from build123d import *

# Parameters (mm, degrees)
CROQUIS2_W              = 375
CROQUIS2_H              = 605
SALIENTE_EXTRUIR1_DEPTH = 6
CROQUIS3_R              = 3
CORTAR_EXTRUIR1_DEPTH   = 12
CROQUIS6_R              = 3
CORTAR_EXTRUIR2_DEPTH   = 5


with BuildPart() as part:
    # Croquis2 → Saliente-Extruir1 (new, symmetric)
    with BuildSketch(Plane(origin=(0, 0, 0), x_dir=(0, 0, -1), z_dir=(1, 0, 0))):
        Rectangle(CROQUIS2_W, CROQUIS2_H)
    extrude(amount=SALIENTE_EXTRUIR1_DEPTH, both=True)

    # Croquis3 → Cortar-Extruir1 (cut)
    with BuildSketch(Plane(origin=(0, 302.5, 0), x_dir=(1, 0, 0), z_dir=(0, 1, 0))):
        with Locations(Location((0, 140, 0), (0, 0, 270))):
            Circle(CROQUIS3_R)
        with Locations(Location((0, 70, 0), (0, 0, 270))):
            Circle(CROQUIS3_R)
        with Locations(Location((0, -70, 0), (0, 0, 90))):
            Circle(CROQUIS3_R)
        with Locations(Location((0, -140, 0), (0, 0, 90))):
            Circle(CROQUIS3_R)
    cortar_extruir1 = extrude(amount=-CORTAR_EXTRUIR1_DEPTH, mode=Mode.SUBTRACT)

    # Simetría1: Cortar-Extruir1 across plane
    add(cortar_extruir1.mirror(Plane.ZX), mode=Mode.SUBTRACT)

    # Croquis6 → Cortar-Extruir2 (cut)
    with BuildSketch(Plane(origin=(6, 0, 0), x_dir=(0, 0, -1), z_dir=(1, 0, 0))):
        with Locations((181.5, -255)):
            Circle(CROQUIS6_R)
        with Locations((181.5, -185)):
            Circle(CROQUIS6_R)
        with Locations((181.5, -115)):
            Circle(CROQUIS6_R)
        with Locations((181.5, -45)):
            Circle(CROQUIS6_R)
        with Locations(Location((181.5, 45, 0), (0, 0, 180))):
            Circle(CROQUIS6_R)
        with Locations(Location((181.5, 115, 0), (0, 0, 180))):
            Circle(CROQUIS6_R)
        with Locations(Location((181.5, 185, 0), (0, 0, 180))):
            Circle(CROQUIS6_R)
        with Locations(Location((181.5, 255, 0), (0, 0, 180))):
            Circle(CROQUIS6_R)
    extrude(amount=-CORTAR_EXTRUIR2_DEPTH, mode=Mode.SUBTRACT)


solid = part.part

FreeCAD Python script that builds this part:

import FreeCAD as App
import Part
import Sketcher
Q = App.Units.Quantity


def add_polygon(sketch, points):
    """Adds a closed chain of lines whose ends are joined by coincident constraints."""
    first, n = sketch.GeometryCount, len(points)
    for a, b in zip(points, points[1:] + points[:1]):
        sketch.addGeometry(Part.LineSegment(App.Vector(*a, 0), App.Vector(*b, 0)), False)
    for i in range(n):
        sketch.addConstraint(Sketcher.Constraint("Coincident", first + i, 2, first + (i + 1) % n, 1))

doc = App.newDocument("Part")
body = doc.addObject("PartDesign::Body", "Body")

# Sketch on YZ plane
sketch1 = body.newObject("Sketcher::SketchObject", "Sketch")
sketch1.AttachmentSupport = (doc.getObject("YZ_Plane"), [""])
sketch1.MapMode = "FlatFace"
add_polygon(sketch1, [(302, 188), (-302, 188), (-302, -188), (302, -188)])  # lines 0-3
sketch1.addConstraint([
    Sketcher.Constraint("Horizontal", 0),
    Sketcher.Constraint("Vertical", 1),
    Sketcher.Constraint("Horizontal", 2),
    Sketcher.Constraint("Vertical", 3),
    Sketcher.Constraint("Symmetric", 0, 2, 2, 2, -1, 1),
    Sketcher.Constraint("DistanceX", 0, 2, 0, 1, Q("605 mm")),
    Sketcher.Constraint("DistanceY", 1, 2, 1, 1, Q("375 mm")),
])
pad1 = body.newObject("PartDesign::Pad", "Pad")
pad1.Profile = sketch1
pad1.Length = 12
pad1.Midplane = True

# Sketch on XZ plane
sketch2 = body.newObject("Sketcher::SketchObject", "Sketch001")
sketch2.AttachmentSupport = (doc.getObject("XZ_Plane"), [""])
sketch2.MapMode = "FlatFace"
sketch2.AttachmentOffset = App.Placement(App.Vector(0, 0, -302.5), App.Rotation())
sketch2.addGeometry([
    Part.Circle(App.Vector(0, -140, 0), App.Vector(0, 0, 1), 3),
    Part.Circle(App.Vector(0, -70, 0), App.Vector(0, 0, 1), 3),
    Part.Circle(App.Vector(0, 70, 0), App.Vector(0, 0, 1), 3),
    Part.Circle(App.Vector(0, 140, 0), App.Vector(0, 0, 1), 3),
], False)
sketch2.addConstraint([
    Sketcher.Constraint("Equal", 0, 1),
    Sketcher.Constraint("Equal", 1, 2),
    Sketcher.Constraint("Equal", 2, 3),
    Sketcher.Constraint("Symmetric", 1, 3, 2, 3, -1, 1),
    Sketcher.Constraint("Symmetric", 0, 3, 3, 3, -1, 1),
    Sketcher.Constraint("PointOnObject", 0, 3, -2),
    Sketcher.Constraint("PointOnObject", 1, 3, -2),
    Sketcher.Constraint("Diameter", 0, Q("6 mm")),
    Sketcher.Constraint("DistanceY", 0, 3, -1, 1, Q("140 mm")),
    Sketcher.Constraint("DistanceY", 1, 3, -1, 1, Q("70 mm")),
])
pocket1 = body.newObject("PartDesign::Pocket", "Pocket")
pocket1.Profile = sketch2
pocket1.Length = 12
pocket1.Reversed = True
doc.recompute()

mirrored = body.newObject("PartDesign::Mirrored", "Mirrored")
mirrored.Originals = [pocket1]
mirrored.MirrorPlane = (doc.getObject("XZ_Plane"), [""])
body.Tip = mirrored

# Sketch on YZ plane
sketch3 = body.newObject("Sketcher::SketchObject", "Sketch002")
sketch3.AttachmentSupport = (doc.getObject("YZ_Plane"), [""])
sketch3.MapMode = "FlatFace"
sketch3.AttachmentOffset = App.Placement(App.Vector(0, 0, 6), App.Rotation())
sketch3.addGeometry([
    Part.Circle(App.Vector(-255, -181.5, 0), App.Vector(0, 0, 1), 3),  # 0
    Part.Circle(App.Vector(-185, -181.5, 0), App.Vector(0, 0, 1), 3),  # 1
    Part.Circle(App.Vector(-115, -181.5, 0), App.Vector(0, 0, 1), 3),  # 2
    Part.Circle(App.Vector(-45, -181.5, 0), App.Vector(0, 0, 1), 3),  # 3
    Part.Circle(App.Vector(45, -181.5, 0), App.Vector(0, 0, 1), 3),  # 4
    Part.Circle(App.Vector(115, -181.5, 0), App.Vector(0, 0, 1), 3),  # 5
    Part.Circle(App.Vector(185, -181.5, 0), App.Vector(0, 0, 1), 3),  # 6
    Part.Circle(App.Vector(255, -181.5, 0), App.Vector(0, 0, 1), 3),  # 7
], False)
sketch3.addConstraint([
    Sketcher.Constraint("Equal", 0, 1),
    Sketcher.Constraint("Equal", 1, 2),
    Sketcher.Constraint("Equal", 2, 3),
    Sketcher.Constraint("Equal", 3, 4),
    Sketcher.Constraint("Equal", 4, 5),
    Sketcher.Constraint("Equal", 5, 6),
    Sketcher.Constraint("Equal", 6, 7),
    Sketcher.Constraint("Symmetric", 3, 3, 4, 3, -2),
    Sketcher.Constraint("Symmetric", 2, 3, 5, 3, -2),
    Sketcher.Constraint("Symmetric", 1, 3, 6, 3, -2),
    Sketcher.Constraint("Symmetric", 0, 3, 7, 3, -2),
    Sketcher.Constraint("Horizontal", 0, 3, 1, 3),
    Sketcher.Constraint("Horizontal", 1, 3, 2, 3),
    Sketcher.Constraint("Horizontal", 2, 3, 3, 3),
    Sketcher.Constraint("Diameter", 0, Q("6 mm")),
    Sketcher.Constraint("DistanceX", 0, 3, -1, 1, Q("255 mm")),
    Sketcher.Constraint("DistanceX", 1, 3, -1, 1, Q("185 mm")),
    Sketcher.Constraint("DistanceX", 2, 3, -1, 1, Q("115 mm")),
    Sketcher.Constraint("DistanceX", 3, 3, -1, 1, Q("45 mm")),
    Sketcher.Constraint("DistanceY", 0, 3, -1, 1, Q("181.5 mm")),
])
pocket2 = body.newObject("PartDesign::Pocket", "Pocket001")
pocket2.Profile = sketch3
pocket2.Length = 5

doc.recompute()
